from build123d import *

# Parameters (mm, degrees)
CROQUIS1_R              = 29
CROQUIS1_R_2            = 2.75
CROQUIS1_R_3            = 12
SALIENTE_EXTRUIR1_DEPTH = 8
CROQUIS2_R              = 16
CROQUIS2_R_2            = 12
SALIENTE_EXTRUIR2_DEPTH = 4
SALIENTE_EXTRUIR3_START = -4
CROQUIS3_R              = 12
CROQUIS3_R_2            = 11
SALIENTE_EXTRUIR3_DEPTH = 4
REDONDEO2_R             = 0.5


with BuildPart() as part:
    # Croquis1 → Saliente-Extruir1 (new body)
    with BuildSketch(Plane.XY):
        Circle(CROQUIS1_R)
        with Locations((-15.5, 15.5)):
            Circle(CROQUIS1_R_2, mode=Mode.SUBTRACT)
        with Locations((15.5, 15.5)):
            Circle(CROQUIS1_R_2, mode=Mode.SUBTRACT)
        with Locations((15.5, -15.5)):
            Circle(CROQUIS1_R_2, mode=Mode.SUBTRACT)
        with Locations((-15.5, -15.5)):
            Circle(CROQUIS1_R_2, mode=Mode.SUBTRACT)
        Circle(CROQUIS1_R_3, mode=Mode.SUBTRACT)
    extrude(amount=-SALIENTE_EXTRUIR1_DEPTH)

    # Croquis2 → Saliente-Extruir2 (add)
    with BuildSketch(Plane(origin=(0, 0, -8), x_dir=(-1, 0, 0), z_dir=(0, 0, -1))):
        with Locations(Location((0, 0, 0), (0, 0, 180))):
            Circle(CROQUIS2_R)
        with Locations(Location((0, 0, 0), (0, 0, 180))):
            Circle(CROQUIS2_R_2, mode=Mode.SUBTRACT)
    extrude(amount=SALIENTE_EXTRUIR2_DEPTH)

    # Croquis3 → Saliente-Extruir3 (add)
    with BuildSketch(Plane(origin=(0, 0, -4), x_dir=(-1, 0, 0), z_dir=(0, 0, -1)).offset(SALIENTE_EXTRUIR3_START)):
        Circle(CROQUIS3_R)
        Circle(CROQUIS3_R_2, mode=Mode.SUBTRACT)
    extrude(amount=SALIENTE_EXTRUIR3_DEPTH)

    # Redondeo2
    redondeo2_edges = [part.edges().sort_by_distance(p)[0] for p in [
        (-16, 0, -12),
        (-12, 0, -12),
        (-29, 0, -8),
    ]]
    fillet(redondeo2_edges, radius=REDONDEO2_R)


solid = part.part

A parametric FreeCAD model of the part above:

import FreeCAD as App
import Part
import Sketcher
from FreeCAD import Vector
Q = App.Units.Quantity


def edges_at(feature, points):
    """Names of the edges that pass closest to the given points."""
    edges = feature.Shape.Edges
    near = lambda p: min(range(len(edges)), key=lambda i: edges[i].distToShape(Part.Vertex(*p))[0])
    return sorted({f"Edge{near(p) + 1}" for p in points})

doc = App.newDocument("Part")
body = doc.addObject("PartDesign::Body", "Body")

# Sketch on XY plane
sketch1 = doc.addObject("Sketcher::SketchObject", "Sketch")
body.addObject(sketch1)
sketch1.AttachmentSupport = (doc.XY_Plane, [""])
sketch1.MapMode = "FlatFace"
sketch1.addGeometry(Part.Circle(Vector(0, 0, 0), Vector(0, 0, 1), 29), False)
sketch1.addGeometry(Part.Circle(Vector(-15.5, -15.5, 0), Vector(0, 0, 1), 2.8), False)
sketch1.addGeometry(Part.Circle(Vector(15.5, -15.5, 0), Vector(0, 0, 1), 2.8), False)
sketch1.addGeometry(Part.Circle(Vector(-15.5, 15.5, 0), Vector(0, 0, 1), 2.8), False)
sketch1.addGeometry(Part.Circle(Vector(0, 0, 0), Vector(0, 0, 1), 12), False)
sketch1.addGeometry(Part.Circle(Vector(15.5, 15.5, 0), Vector(0, 0, 1), 2.8), False)
sketch1.addConstraint(Sketcher.Constraint("Coincident", 0, 3, -1, 1))
sketch1.addConstraint(Sketcher.Constraint("Coincident", 4, 3, -1, 1))
sketch1.addConstraint(Sketcher.Constraint("Equal", 1, 2))
sketch1.addConstraint(Sketcher.Constraint("Equal", 2, 3))
sketch1.addConstraint(Sketcher.Constraint("Equal", 3, 5))
sketch1.addConstraint(Sketcher.Constraint("Symmetric", 2, 3, 3, 3, -1, 1))
sketch1.addConstraint(Sketcher.Constraint("Symmetric", 1, 3, 5, 3, -1, 1))
sketch1.addConstraint(Sketcher.Constraint("Symmetric", 1, 3, 2, 3, -2))
sketch1.addConstraint(Sketcher.Constraint("Diameter", 0, Q("58 mm")))
sketch1.addConstraint(Sketcher.Constraint("Diameter", 4, Q("24 mm")))
sketch1.addConstraint(Sketcher.Constraint("Diameter", 1, Q("5.5 mm")))
sketch1.addConstraint(Sketcher.Constraint("DistanceX", 1, 3, 2, 3, Q("31 mm")))
sketch1.addConstraint(Sketcher.Constraint("DistanceY", 1, 3, 3, 3, Q("31 mm")))
pad1 = doc.addObject("PartDesign::Pad", "Pad")
body.addObject(pad1)
pad1.Profile = sketch1
pad1.Length = 8
pad1.Reversed = True

# Sketch on XY plane
sketch2 = doc.addObject("Sketcher::SketchObject", "Sketch001")
body.addObject(sketch2)
sketch2.AttachmentSupport = (doc.XY_Plane, [""])
sketch2.MapMode = "FlatFace"
sketch2.AttachmentOffset = App.Placement(Vector(0, 0, -8), App.Rotation())
sketch2.addGeometry(Part.Circle(Vector(0, 0, 0), Vector(0, 0, 1), 16), False)
sketch2.addGeometry(Part.Circle(Vector(0, 0, 0), Vector(0, 0, 1), 12), False)
sketch2.addConstraint(Sketcher.Constraint("Coincident", 0, 3, -1, 1))
sketch2.addConstraint(Sketcher.Constraint("Coincident", 1, 3, -1, 1))
sketch2.addConstraint(Sketcher.Constraint("Diameter", 0, Q("32 mm")))
sketch2.addConstraint(Sketcher.Constraint("Diameter", 1, Q("24 mm")))
pad2 = doc.addObject("PartDesign::Pad", "Pad001")
body.addObject(pad2)
pad2.Profile = sketch2
pad2.Length = 4
pad2.Reversed = True

# Sketch on XY plane
sketch3 = doc.addObject("Sketcher::SketchObject", "Sketch002")
body.addObject(sketch3)
sketch3.AttachmentSupport = (doc.XY_Plane, [""])
sketch3.MapMode = "FlatFace"
sketch3.addGeometry(Part.Circle(Vector(0, 0, 0), Vector(0, 0, 1), 12), False)
sketch3.addGeometry(Part.Circle(Vector(0, 0, 0), Vector(0, 0, 1), 11), False)
sketch3.addConstraint(Sketcher.Constraint("Coincident", 0, 3, -1, 1))
sketch3.addConstraint(Sketcher.Constraint("Coincident", 1, 3, -1, 1))
sketch3.addConstraint(Sketcher.Constraint("Diameter", 0, Q("24 mm")))
sketch3.addConstraint(Sketcher.Constraint("Diameter", 1, Q("22 mm")))
pad3 = doc.addObject("PartDesign::Pad", "Pad002")
body.addObject(pad3)
pad3.Profile = sketch3
pad3.Length = 4
pad3.Reversed = True
doc.recompute()

fillet = doc.addObject("PartDesign::Fillet", "Fillet")
body.addObject(fillet)
fillet.Base = (pad3, edges_at(pad3, [(-16, 0, -12), (-12, 0, -12), (-29, 0, -8)]))
fillet.Radius = 0.5

doc.recompute()
